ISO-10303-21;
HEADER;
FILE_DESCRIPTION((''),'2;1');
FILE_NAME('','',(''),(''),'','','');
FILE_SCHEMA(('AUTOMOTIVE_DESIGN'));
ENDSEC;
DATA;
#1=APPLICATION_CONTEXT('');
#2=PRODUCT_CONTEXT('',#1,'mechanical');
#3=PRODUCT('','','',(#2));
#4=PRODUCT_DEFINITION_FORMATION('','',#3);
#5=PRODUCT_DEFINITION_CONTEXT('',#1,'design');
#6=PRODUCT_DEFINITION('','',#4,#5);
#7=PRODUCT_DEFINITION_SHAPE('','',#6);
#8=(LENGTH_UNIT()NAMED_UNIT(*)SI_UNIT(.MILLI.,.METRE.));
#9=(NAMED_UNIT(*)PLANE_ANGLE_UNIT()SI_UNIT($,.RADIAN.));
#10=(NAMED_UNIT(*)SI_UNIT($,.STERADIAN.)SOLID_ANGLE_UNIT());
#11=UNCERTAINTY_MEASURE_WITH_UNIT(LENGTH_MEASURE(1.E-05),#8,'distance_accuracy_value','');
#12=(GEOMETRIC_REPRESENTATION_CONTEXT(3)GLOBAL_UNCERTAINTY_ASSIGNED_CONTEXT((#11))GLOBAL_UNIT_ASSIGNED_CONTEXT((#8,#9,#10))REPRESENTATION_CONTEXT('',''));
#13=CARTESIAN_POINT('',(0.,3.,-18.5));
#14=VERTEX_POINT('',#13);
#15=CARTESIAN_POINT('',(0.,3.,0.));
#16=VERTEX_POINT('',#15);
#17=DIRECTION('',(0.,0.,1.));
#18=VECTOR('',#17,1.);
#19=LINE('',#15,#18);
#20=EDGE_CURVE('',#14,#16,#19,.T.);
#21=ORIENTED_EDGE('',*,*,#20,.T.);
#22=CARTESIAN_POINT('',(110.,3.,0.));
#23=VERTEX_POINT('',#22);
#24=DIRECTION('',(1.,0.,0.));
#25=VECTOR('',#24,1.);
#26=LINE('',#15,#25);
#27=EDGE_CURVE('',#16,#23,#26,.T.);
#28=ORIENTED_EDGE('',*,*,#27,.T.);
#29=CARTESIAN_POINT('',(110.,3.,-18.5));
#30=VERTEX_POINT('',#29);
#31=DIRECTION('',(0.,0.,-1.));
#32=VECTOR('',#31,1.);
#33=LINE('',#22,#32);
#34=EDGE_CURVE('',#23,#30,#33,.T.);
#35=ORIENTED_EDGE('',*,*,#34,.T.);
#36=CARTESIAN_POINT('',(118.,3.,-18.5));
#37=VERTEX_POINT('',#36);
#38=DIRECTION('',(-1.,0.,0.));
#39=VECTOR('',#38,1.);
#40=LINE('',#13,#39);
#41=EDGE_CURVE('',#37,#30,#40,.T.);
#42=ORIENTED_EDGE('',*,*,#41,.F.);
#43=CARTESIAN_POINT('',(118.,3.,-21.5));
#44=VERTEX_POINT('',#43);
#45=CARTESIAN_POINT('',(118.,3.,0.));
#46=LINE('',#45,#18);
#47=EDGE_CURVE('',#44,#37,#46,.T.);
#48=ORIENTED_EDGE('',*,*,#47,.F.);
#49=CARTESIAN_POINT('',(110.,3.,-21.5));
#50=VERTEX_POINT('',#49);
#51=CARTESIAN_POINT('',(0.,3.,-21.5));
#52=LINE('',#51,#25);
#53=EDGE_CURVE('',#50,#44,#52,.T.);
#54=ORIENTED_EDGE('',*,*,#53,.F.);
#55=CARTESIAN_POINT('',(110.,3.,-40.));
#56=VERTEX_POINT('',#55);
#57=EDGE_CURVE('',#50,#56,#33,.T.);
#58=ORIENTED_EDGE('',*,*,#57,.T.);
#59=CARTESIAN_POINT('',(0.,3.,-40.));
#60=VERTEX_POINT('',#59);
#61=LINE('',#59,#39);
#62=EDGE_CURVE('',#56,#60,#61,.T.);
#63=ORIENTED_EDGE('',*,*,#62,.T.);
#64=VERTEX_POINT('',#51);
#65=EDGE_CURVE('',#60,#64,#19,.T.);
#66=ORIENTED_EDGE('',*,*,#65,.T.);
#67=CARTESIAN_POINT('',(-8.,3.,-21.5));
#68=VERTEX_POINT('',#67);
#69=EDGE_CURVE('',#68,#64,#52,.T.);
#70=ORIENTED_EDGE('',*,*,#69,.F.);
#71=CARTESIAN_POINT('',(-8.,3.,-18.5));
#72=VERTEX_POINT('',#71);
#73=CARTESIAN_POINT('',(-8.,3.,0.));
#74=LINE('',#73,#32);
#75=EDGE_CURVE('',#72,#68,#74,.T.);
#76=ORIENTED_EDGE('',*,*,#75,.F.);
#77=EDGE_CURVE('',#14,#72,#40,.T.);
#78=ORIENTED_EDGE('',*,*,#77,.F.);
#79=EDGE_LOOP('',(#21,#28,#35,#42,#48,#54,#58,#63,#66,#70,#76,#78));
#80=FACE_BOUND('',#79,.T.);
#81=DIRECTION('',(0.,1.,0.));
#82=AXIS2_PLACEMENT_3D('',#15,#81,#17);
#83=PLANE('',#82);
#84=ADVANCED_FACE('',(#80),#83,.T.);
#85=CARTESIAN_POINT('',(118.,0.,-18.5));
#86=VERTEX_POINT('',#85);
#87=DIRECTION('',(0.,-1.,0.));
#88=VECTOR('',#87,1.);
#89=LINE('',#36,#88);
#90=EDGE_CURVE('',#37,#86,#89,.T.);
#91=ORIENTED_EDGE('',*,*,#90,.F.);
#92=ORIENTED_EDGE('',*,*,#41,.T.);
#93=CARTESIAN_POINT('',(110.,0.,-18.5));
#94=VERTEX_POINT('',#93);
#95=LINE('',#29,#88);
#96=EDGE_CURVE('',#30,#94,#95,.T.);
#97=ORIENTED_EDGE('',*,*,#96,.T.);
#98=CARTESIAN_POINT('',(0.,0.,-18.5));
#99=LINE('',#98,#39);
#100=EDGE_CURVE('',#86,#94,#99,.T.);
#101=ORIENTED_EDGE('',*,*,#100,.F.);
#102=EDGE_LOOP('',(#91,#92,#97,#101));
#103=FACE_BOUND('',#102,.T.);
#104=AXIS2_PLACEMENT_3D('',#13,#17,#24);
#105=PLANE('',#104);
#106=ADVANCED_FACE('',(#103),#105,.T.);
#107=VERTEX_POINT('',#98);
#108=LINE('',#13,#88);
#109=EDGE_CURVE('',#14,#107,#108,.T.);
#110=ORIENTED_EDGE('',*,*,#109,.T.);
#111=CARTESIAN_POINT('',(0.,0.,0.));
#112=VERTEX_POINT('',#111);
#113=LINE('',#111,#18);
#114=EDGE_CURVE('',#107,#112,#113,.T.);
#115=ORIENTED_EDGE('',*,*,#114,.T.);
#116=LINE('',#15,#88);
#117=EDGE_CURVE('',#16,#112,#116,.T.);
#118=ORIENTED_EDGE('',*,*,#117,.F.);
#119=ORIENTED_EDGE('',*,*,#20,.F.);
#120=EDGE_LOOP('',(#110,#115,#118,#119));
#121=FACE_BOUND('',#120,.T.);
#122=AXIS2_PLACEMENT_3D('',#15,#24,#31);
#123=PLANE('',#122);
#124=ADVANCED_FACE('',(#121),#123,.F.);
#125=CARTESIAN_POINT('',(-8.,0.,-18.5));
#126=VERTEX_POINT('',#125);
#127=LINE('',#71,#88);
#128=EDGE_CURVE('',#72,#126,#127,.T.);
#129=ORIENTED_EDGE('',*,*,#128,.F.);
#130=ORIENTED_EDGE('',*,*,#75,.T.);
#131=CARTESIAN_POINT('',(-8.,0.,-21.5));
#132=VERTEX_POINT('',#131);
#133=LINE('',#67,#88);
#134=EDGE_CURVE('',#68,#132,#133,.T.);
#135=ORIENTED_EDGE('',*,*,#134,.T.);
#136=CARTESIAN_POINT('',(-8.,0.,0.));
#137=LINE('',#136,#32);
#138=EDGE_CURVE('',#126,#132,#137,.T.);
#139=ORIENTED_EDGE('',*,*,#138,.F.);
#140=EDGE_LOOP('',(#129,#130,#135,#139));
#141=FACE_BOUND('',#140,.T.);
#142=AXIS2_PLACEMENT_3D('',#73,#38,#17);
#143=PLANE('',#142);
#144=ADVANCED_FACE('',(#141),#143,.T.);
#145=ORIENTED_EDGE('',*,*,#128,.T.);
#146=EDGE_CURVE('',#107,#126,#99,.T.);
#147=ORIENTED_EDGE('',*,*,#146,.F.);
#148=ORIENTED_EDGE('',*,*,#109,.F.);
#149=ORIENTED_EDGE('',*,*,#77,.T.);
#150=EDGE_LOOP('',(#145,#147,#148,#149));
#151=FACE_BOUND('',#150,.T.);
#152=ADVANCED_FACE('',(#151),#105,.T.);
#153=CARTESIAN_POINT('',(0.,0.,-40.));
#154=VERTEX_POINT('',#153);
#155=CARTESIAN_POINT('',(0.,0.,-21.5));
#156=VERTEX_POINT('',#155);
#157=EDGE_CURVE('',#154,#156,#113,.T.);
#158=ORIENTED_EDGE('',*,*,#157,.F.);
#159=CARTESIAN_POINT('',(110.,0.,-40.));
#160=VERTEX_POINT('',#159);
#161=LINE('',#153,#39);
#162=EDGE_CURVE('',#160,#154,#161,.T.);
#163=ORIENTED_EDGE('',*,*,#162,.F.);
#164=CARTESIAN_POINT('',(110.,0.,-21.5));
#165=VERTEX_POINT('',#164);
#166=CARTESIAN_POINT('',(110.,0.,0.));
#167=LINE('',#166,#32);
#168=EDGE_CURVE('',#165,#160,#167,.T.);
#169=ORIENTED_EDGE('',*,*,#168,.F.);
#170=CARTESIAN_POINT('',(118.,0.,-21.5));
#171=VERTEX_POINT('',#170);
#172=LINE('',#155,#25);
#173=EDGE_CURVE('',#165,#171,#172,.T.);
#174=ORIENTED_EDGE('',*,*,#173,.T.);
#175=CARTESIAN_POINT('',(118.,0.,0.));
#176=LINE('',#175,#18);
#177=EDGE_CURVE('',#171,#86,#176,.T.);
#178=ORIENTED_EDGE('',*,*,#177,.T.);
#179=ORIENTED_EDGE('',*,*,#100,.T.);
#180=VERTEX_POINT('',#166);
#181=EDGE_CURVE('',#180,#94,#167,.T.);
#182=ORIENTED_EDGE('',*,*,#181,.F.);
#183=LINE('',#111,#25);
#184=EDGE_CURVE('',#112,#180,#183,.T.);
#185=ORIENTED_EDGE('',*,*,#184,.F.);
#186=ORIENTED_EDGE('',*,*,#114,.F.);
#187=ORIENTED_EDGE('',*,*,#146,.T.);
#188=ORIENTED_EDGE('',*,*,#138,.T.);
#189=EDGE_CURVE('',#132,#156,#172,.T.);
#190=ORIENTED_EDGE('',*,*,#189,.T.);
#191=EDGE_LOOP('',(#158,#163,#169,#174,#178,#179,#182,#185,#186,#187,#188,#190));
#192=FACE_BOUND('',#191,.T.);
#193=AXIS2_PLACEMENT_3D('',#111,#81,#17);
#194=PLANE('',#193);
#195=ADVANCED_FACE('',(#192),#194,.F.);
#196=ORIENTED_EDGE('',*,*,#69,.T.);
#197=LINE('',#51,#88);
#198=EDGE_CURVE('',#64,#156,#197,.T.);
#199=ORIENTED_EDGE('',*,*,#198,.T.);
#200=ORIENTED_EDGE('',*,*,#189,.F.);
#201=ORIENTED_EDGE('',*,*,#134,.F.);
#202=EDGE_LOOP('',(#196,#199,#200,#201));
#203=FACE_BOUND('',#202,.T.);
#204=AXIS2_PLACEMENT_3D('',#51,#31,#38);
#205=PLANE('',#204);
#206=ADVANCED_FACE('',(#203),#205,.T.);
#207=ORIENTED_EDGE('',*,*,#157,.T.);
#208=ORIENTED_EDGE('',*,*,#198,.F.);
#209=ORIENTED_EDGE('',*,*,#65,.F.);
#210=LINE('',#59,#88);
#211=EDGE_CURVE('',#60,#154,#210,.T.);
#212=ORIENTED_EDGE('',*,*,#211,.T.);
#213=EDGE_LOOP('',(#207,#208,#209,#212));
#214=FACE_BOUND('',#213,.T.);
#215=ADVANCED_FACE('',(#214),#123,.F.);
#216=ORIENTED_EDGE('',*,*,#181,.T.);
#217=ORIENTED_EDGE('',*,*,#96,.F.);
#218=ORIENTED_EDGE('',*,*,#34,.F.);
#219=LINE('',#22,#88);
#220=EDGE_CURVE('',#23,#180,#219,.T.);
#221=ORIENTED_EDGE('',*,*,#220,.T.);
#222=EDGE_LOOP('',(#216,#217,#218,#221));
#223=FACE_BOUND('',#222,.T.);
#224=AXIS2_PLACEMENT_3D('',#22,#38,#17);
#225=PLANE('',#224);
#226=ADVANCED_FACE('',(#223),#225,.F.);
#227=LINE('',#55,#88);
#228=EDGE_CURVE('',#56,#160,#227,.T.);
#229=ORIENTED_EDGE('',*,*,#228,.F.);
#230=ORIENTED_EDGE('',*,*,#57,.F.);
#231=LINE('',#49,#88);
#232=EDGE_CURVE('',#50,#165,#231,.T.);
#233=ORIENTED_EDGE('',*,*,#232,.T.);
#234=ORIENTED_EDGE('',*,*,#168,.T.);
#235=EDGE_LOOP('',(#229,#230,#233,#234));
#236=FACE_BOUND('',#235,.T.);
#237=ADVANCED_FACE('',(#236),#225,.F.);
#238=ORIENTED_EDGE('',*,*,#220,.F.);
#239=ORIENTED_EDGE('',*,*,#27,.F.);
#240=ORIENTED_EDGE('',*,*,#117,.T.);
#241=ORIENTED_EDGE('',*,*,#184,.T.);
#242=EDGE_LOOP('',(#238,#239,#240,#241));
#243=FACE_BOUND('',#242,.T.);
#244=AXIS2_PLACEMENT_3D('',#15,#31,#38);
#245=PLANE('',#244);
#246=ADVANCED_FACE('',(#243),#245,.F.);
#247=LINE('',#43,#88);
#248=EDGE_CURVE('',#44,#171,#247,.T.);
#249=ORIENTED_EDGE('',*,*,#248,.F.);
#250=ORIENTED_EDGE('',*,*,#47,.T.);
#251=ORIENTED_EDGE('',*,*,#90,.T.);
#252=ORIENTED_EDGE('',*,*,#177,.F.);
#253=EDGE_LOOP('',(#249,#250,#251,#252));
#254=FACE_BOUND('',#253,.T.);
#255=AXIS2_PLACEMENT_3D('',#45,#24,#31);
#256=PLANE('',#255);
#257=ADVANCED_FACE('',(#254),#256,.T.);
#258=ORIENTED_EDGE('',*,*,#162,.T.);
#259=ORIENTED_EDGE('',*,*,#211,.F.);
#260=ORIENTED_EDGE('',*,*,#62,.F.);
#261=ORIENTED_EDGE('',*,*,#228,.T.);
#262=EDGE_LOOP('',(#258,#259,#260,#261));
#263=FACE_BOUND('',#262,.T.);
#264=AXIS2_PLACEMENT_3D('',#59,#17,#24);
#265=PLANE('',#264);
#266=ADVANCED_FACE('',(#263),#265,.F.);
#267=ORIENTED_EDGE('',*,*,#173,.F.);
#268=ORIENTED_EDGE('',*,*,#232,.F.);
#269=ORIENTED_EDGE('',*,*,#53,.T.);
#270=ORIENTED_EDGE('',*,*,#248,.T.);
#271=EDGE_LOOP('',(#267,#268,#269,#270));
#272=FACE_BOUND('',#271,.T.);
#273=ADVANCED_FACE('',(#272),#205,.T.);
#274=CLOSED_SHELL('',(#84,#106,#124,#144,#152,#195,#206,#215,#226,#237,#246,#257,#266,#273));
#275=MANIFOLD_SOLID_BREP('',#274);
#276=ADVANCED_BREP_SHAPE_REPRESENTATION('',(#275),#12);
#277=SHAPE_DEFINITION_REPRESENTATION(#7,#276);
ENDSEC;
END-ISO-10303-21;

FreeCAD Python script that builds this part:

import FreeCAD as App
import Part
import Sketcher
from FreeCAD import Vector
Q = App.Units.Quantity

doc = App.newDocument("Part")
params = doc.addObject("Spreadsheet::Sheet", "Params")
for row, (alias, value) in enumerate([
    ("sketch1_width", "8 mm"),
    ("sketch1_width2", "110 mm"),
    ("sketch1_height", "3 mm"),
    ("sketch1_height2", "18.5 mm"),
    ("pad1_length", "3 mm"),
], start=1):
    params.set(f"A{row}", alias)
    params.set(f"B{row}", "=" + value)
    params.setAlias(f"B{row}", alias)

body = doc.addObject("PartDesign::Body", "Body")

# Sketch on XZ plane
sketch1 = body.newObject("Sketcher::SketchObject", "Sketch")
sketch1.AttachmentSupport = (doc.getObject("XZ_Plane"), [""])
sketch1.MapMode = "FlatFace"
sketch1.addGeometry([
    Part.LineSegment(Vector(-8, -21.5, 0), Vector(-8, -18.5, 0)),  # 0
    Part.LineSegment(Vector(-8, -18.5, 0), Vector(0, -18.5, 0)),  # 1
    Part.LineSegment(Vector(0, -18.5, 0), Vector(0, 0, 0)),  # 2
    Part.LineSegment(Vector(0, 0, 0), Vector(110, 0, 0)),  # 3
    Part.LineSegment(Vector(110, 0, 0), Vector(110, -18.5, 0)),  # 4
    Part.LineSegment(Vector(110, -18.5, 0), Vector(118, -18.5, 0)),  # 5
    Part.LineSegment(Vector(118, -18.5, 0), Vector(118, -21.5, 0)),  # 6
    Part.LineSegment(Vector(118, -21.5, 0), Vector(110, -21.5, 0)),  # 7
    Part.LineSegment(Vector(110, -21.5, 0), Vector(110, -40, 0)),  # 8
    Part.LineSegment(Vector(110, -40, 0), Vector(0, -40, 0)),  # 9
    Part.LineSegment(Vector(0, -40, 0), Vector(0, -21.5, 0)),  # 10
    Part.LineSegment(Vector(0, -21.5, 0), Vector(-8, -21.5, 0)),  # 11
], False)
sketch1.addConstraint([
    Sketcher.Constraint("Coincident", 0, 2, 1, 1),
    Sketcher.Constraint("Coincident", 1, 2, 2, 1),
    Sketcher.Constraint("Coincident", 2, 2, 3, 1),
    Sketcher.Constraint("Coincident", 3, 2, 4, 1),
    Sketcher.Constraint("Coincident", 4, 2, 5, 1),
    Sketcher.Constraint("Coincident", 5, 2, 6, 1),
    Sketcher.Constraint("Coincident", 6, 2, 7, 1),
    Sketcher.Constraint("Coincident", 7, 2, 8, 1),
    Sketcher.Constraint("Coincident", 8, 2, 9, 1),
    Sketcher.Constraint("Coincident", 9, 2, 10, 1),
    Sketcher.Constraint("Coincident", 10, 2, 11, 1),
    Sketcher.Constraint("Coincident", 11, 2, 0, 1),
    Sketcher.Constraint("Vertical", 0),
    Sketcher.Constraint("Horizontal", 1),
    Sketcher.Constraint("Vertical", 2),
    Sketcher.Constraint("Horizontal", 3),
    Sketcher.Constraint("Vertical", 4),
    Sketcher.Constraint("Horizontal", 5),
    Sketcher.Constraint("Vertical", 6),
    Sketcher.Constraint("Horizontal", 7),
    Sketcher.Constraint("Vertical", 8),
    Sketcher.Constraint("Horizontal", 9),
    Sketcher.Constraint("Vertical", 10),
    Sketcher.Constraint("Horizontal", 11),
    Sketcher.Constraint("Coincident", 2, 2, -1, 1),
    Sketcher.Constraint("PointOnObject", 9, 2, -2),
    Sketcher.Constraint("Horizontal", 1, 2, 4, 2),
    Sketcher.Constraint("Horizontal", 7, 2, 10, 2),
    Sketcher.Constraint("Vertical", 4, 2, 7, 2),
    Sketcher.Constraint("Equal", 1, 5),
    Sketcher.Constraint("Equal", 4, 8),
    Sketcher.Constraint("DistanceX", 1, 1, 1, 2, Q("8 mm")),
    Sketcher.Constraint("DistanceX", 3, 1, 3, 2, Q("110 mm")),
    Sketcher.Constraint("DistanceY", 0, 1, 0, 2, Q("3 mm")),
    Sketcher.Constraint("DistanceY", 2, 1, 2, 2, Q("18.5 mm")),
])
sketch1.setExpression("Constraints[31]", "Params.sketch1_width")
sketch1.setExpression("Constraints[32]", "Params.sketch1_width2")
sketch1.setExpression("Constraints[33]", "Params.sketch1_height")
sketch1.setExpression("Constraints[34]", "Params.sketch1_height2")
pad1 = body.newObject("PartDesign::Pad", "Pad")
pad1.Profile = sketch1
pad1.setExpression("Length", "Params.pad1_length")
pad1.Reversed = True

doc.recompute()
